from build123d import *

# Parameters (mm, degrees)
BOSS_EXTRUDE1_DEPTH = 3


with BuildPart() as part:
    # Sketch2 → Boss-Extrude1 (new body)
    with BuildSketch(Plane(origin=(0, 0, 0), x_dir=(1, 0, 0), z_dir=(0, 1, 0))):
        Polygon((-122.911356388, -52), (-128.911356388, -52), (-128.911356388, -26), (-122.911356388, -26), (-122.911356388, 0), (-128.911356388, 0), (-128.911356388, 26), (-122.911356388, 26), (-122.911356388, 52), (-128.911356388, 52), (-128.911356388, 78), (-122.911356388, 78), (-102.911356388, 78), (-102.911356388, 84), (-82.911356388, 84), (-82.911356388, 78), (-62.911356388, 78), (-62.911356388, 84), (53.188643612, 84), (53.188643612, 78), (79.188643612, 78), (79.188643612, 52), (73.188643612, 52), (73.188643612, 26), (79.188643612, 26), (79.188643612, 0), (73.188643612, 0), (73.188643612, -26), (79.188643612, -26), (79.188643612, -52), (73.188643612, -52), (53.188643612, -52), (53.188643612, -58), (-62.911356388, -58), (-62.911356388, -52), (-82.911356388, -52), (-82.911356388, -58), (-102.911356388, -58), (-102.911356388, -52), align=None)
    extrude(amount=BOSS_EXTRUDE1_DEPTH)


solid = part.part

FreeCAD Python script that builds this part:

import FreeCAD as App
import Part
import Sketcher


def add_polygon(sketch, points):
    """Adds a closed chain of lines whose ends are joined by coincident constraints."""
    first, n = sketch.GeometryCount, len(points)
    for a, b in zip(points, points[1:] + points[:1]):
        sketch.addGeometry(Part.LineSegment(App.Vector(*a, 0), App.Vector(*b, 0)), False)
    for i in range(n):
        sketch.addConstraint(Sketcher.Constraint("Coincident", first + i, 2, first + (i + 1) % n, 1))

doc = App.newDocument("Part")
params = doc.addObject("Spreadsheet::Sheet", "Params")
for row, (alias, value) in enumerate([
    ("sketch1_width", "26 mm"),
    ("sketch1_width2", "20 mm"),
    ("sketch1_width3", "6 mm"),
    ("sketch1_width4", "116.1 mm"),
    ("pad1_length", "3 mm"),
], start=1):
    params.set(f"A{row}", alias)
    params.set(f"B{row}", "=" + value)
    params.setAlias(f"B{row}", alias)

body = doc.addObject("PartDesign::Body", "Body")

sketch1 = body.newObject("Sketcher::SketchObject", "Sketch")
sketch1.AttachmentSupport = (doc.getObject("XZ_Plane"), [""])
sketch1.MapMode = "FlatFace"
add_polygon(sketch1, [(-129, 52), (-103, 52), (-103, 58), (-83, 58), (-83, 52), (-63, 52), (-63, 58), (53, 58), (53, 52), (79, 52), (79, 26), (73, 26), (73, 0), (79, 0), (79, -26), (73, -26), (73, -52), (79, -52), (79, -78), (53, -78), (53, -84), (-63, -84), (-63, -78), (-83, -78), (-83, -84), (-103, -84), (-103, -78), (-129, -78), (-129, -52), (-123, -52), (-123, -26), (-129, -26), (-129, 0), (-123, 0), (-123, 26), (-129, 26)])
sketch1.addConstraint([
    Sketcher.Constraint("Horizontal", 0),
    Sketcher.Constraint("Vertical", 1),
    Sketcher.Constraint("Horizontal", 2),
    Sketcher.Constraint("Vertical", 3),
    Sketcher.Constraint("Horizontal", 4),
    Sketcher.Constraint("Vertical", 5),
    Sketcher.Constraint("Horizontal", 6),
    Sketcher.Constraint("Vertical", 7),
    Sketcher.Constraint("Horizontal", 8),
    Sketcher.Constraint("Vertical", 9),
    Sketcher.Constraint("Horizontal", 10),
    Sketcher.Constraint("Vertical", 11),
    Sketcher.Constraint("Horizontal", 12),
    Sketcher.Constraint("Vertical", 13),
    Sketcher.Constraint("Horizontal", 14),
    Sketcher.Constraint("Vertical", 15),
    Sketcher.Constraint("Horizontal", 16),
    Sketcher.Constraint("Vertical", 17),
    Sketcher.Constraint("Horizontal", 18),
    Sketcher.Constraint("Vertical", 19),
    Sketcher.Constraint("Horizontal", 20),
    Sketcher.Constraint("Vertical", 21),
    Sketcher.Constraint("Horizontal", 22),
    Sketcher.Constraint("Vertical", 23),
    Sketcher.Constraint("Horizontal", 24),
    Sketcher.Constraint("Vertical", 25),
    Sketcher.Constraint("Horizontal", 26),
    Sketcher.Constraint("Vertical", 27),
    Sketcher.Constraint("Horizontal", 28),
    Sketcher.Constraint("Vertical", 29),
    Sketcher.Constraint("Horizontal", 30),
    Sketcher.Constraint("Vertical", 31),
    Sketcher.Constraint("Horizontal", 32),
    Sketcher.Constraint("Vertical", 33),
    Sketcher.Constraint("Horizontal", 34),
    Sketcher.Constraint("Vertical", 35),
    Sketcher.Constraint("Symmetric", 9, 2, 13, 2, -1),
    Sketcher.Constraint("Symmetric", 8, 2, 16, 2, -1),
    Sketcher.Constraint("Symmetric", 29, 2, 33, 2, -1),
    Sketcher.Constraint("Symmetric", 27, 2, 35, 2, -1),
    Sketcher.Constraint("PointOnObject", 11, 2, -1),
    Sketcher.Constraint("PointOnObject", 31, 2, -1),
    Sketcher.Constraint("Horizontal", 0, 2, 3, 2),
    Sketcher.Constraint("Horizontal", 2, 2, 5, 2),
    Sketcher.Constraint("Horizontal", 4, 2, 7, 2),
    Sketcher.Constraint("Horizontal", 18, 2, 21, 2),
    Sketcher.Constraint("Horizontal", 20, 2, 23, 2),
    Sketcher.Constraint("Horizontal", 22, 2, 25, 2),
    Sketcher.Constraint("Horizontal", 14, 2, 29, 2),
    Sketcher.Constraint("Vertical", 11, 2, 14, 2),
    Sketcher.Constraint("Vertical", 7, 2, 18, 2),
    Sketcher.Constraint("Vertical", 5, 2, 20, 2),
    Sketcher.Constraint("Vertical", 3, 2, 22, 2),
    Sketcher.Constraint("Vertical", 1, 2, 24, 2),
    Sketcher.Constraint("Vertical", 27, 2, 30, 2),
    Sketcher.Constraint("Equal", 2, 4),
    Sketcher.Constraint("Equal", 0, 8),
    Sketcher.Constraint("Equal", 16, 28),
    Sketcher.Constraint("Equal", 34, 1),
    Sketcher.Constraint("Equal", 26, 9),
    Sketcher.Constraint("Equal", 9, 11),
    Sketcher.Constraint("Equal", 15, 17),
    Sketcher.Constraint("Equal", 7, 19),
    Sketcher.Constraint("DistanceX", 0, 1, 0, 2, 26.0),
    Sketcher.Constraint("DistanceX", 2, 1, 2, 2, 20.0),
    Sketcher.Constraint("DistanceX", 10, 2, 10, 1, 6.0),
    Sketcher.Constraint("DistanceX", 6, 1, 6, 2, 116.1),
    Sketcher.Constraint("DistanceX", 0, 2, -1, 1, 102.911356),
])
sketch1.setExpression("Constraints[99]", "Params.sketch1_width")
sketch1.setExpression("Constraints[100]", "Params.sketch1_width2")
sketch1.setExpression("Constraints[101]", "Params.sketch1_width3")
sketch1.setExpression("Constraints[102]", "Params.sketch1_width4")
pad1 = body.newObject("PartDesign::Pad", "Pad")
pad1.Profile = sketch1
pad1.setExpression("Length", "Params.pad1_length")
pad1.Reversed = True

doc.recompute()
